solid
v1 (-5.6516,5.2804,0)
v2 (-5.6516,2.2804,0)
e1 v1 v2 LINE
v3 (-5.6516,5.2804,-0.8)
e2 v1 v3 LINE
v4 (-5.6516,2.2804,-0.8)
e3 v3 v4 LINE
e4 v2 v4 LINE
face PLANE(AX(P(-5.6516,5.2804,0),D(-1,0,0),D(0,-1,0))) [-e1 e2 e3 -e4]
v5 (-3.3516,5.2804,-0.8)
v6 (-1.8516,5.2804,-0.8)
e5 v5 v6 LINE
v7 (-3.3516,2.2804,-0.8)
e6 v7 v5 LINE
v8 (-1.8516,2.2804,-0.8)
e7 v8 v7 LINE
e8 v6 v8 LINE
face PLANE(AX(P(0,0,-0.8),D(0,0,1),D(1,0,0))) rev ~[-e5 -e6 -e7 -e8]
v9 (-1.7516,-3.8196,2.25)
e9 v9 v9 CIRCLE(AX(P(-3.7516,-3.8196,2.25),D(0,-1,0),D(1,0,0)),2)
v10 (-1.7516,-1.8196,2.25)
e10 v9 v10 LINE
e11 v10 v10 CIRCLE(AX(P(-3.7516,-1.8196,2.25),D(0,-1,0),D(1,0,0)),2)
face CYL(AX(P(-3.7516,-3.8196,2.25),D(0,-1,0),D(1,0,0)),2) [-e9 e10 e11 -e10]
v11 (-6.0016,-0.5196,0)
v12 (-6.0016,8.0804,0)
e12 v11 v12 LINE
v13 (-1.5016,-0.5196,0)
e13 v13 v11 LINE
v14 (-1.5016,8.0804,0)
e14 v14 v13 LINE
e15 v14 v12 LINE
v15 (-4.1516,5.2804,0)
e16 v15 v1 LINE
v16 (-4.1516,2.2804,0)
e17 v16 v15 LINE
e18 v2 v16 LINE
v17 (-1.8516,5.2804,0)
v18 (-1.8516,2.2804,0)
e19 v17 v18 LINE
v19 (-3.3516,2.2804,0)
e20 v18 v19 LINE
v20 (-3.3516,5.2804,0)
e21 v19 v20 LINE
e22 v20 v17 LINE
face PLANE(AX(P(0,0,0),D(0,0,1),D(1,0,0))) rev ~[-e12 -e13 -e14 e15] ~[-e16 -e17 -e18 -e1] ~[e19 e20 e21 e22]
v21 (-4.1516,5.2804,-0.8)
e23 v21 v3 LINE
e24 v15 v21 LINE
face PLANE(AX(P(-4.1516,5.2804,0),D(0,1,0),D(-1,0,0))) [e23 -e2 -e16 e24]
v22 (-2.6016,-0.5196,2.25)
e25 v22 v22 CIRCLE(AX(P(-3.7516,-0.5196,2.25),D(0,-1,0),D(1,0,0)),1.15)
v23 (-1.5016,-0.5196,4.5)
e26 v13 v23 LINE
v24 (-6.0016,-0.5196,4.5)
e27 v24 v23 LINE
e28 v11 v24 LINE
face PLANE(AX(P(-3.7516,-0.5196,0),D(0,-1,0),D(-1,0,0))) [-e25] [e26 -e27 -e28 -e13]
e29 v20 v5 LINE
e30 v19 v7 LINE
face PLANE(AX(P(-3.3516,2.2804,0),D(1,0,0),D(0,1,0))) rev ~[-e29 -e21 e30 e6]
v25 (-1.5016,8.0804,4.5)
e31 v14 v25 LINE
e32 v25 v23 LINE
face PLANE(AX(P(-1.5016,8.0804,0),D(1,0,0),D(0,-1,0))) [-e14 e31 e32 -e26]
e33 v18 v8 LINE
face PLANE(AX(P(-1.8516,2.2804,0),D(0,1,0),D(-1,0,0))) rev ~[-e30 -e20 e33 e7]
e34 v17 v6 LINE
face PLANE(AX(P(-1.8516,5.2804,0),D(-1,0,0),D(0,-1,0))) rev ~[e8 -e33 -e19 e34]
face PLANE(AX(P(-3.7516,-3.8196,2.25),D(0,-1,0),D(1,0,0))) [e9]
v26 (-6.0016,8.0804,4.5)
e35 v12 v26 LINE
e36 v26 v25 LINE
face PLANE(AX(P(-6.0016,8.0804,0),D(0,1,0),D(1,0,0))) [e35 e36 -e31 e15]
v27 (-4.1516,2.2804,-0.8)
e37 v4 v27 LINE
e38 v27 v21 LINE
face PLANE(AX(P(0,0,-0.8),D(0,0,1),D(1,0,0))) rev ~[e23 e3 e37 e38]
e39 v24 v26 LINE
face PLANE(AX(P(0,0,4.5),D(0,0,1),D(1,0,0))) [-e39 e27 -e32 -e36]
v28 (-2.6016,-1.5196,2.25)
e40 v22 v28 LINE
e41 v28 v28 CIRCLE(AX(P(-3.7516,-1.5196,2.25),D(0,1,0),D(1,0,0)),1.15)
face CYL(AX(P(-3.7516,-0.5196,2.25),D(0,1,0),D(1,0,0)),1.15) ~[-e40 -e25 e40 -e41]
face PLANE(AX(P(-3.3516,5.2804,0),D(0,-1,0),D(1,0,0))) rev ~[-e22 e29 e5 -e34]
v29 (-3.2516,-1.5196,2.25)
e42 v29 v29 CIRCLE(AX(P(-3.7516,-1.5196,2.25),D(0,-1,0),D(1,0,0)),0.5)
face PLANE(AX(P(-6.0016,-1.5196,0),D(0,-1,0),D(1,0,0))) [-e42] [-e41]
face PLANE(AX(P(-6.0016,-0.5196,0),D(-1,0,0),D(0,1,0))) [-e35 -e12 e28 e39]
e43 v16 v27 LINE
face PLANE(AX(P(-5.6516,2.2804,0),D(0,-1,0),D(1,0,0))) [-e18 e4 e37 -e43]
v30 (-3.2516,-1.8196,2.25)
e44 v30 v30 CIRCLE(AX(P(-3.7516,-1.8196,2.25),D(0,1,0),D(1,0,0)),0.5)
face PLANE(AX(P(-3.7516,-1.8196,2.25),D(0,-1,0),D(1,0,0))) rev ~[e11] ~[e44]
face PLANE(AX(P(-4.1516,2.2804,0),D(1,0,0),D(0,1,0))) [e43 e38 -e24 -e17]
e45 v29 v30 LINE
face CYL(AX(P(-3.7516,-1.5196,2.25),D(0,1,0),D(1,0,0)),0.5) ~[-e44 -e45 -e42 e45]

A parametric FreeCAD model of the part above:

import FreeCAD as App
import Part
import Sketcher

V = App.Vector


def add_polygon(sketch, points):
    """Adds a closed chain of lines whose ends are joined by coincident constraints."""
    first, n = sketch.GeometryCount, len(points)
    for a, b in zip(points, points[1:] + points[:1]):
        sketch.addGeometry(Part.LineSegment(App.Vector(*a, 0), App.Vector(*b, 0)), False)
    for i in range(n):
        sketch.addConstraint(Sketcher.Constraint("Coincident", first + i, 2, first + (i + 1) % n, 1))

doc = App.newDocument("Part")
body = doc.addObject("PartDesign::Body", "Body")

# Sketch on XY plane
sketch1 = doc.addObject("Sketcher::SketchObject", "Sketch")
body.addObject(sketch1)
sketch1.AttachmentSupport = (doc.XY_Plane, [""])
sketch1.MapMode = "FlatFace"
add_polygon(sketch1, [(-6, 8.1), (-6, -0.5), (-1.5, -0.5), (-1.5, 8.1)])  # lines 0-3
sketch1.addConstraint([
    Sketcher.Constraint("Vertical", 0),
    Sketcher.Constraint("Horizontal", 1),
    Sketcher.Constraint("Vertical", 2),
    Sketcher.Constraint("Horizontal", 3),
    Sketcher.Constraint("DistanceX", 1, 1, 1, 2, 4.5),
    Sketcher.Constraint("DistanceY", 0, 2, 0, 1, 8.6),
    Sketcher.Constraint("DistanceX", 0, 2, -1, 1, 6.0016),
    Sketcher.Constraint("DistanceY", 0, 2, -1, 1, 0.5196),
])
pad1 = doc.addObject("PartDesign::Pad", "Pad")
body.addObject(pad1)
pad1.Profile = sketch1
pad1.Length = 4.5

# Sketch on XY plane
sketch2 = doc.addObject("Sketcher::SketchObject", "Sketch001")
body.addObject(sketch2)
sketch2.AttachmentSupport = (doc.XY_Plane, [""])
sketch2.MapMode = "FlatFace"
add_polygon(sketch2, [(-1.9, 5.3), (-3.4, 5.3), (-3.4, 2.3), (-1.9, 2.3)])  # lines 0-3
add_polygon(sketch2, [(-4.2, 2.3), (-4.2, 5.3), (-5.7, 5.3), (-5.7, 2.3)])  # lines 4-7
sketch2.addConstraint([
    Sketcher.Constraint("Horizontal", 0),
    Sketcher.Constraint("Vertical", 1),
    Sketcher.Constraint("Horizontal", 2),
    Sketcher.Constraint("Vertical", 3),
    Sketcher.Constraint("Vertical", 4),
    Sketcher.Constraint("Horizontal", 5),
    Sketcher.Constraint("Vertical", 6),
    Sketcher.Constraint("Horizontal", 7),
    Sketcher.Constraint("Horizontal", 3, 2, 4, 2),
    Sketcher.Constraint("Horizontal", 2, 2, 6, 2),
    Sketcher.Constraint("Equal", 2, 5),
    Sketcher.Constraint("DistanceY", 1, 2, 1, 1, 3.0),
    Sketcher.Constraint("DistanceX", 0, 2, 0, 1, 1.5),
    Sketcher.Constraint("DistanceX", 4, 2, 0, 2, 0.8),
    Sketcher.Constraint("DistanceX", 0, 2, -1, 1, 3.3516),
    Sketcher.Constraint("DistanceY", -1, 1, 0, 2, 5.2804),
])
pad2 = doc.addObject("PartDesign::Pad", "Pad001")
body.addObject(pad2)
pad2.Profile = sketch2
pad2.Length = 0.8
pad2.Reversed = True

# Sketch on XZ plane
sketch3 = doc.addObject("Sketcher::SketchObject", "Sketch002")
body.addObject(sketch3)
sketch3.AttachmentSupport = (doc.XZ_Plane, [""])
sketch3.MapMode = "FlatFace"
sketch3.AttachmentOffset = App.Placement(V(0, 0, 0.5196), App.Rotation())
sketch3.addGeometry(Part.Circle(V(-3.8, 2.2, 0), V(0, 0, 1), 1.1), False)
sketch3.addConstraint([
    Sketcher.Constraint("Diameter", 0, 2.3),
    Sketcher.Constraint("DistanceY", -1, 1, 0, 3, 2.25),
    Sketcher.Constraint("DistanceX", 0, 3, -1, 1, 3.7516),
])
pad3 = doc.addObject("PartDesign::Pad", "Pad002")
body.addObject(pad3)
pad3.Profile = sketch3
pad3.Length = 1

# Sketch on XZ plane
sketch4 = doc.addObject("Sketcher::SketchObject", "Sketch003")
body.addObject(sketch4)
sketch4.AttachmentSupport = (doc.XZ_Plane, [""])
sketch4.MapMode = "FlatFace"
sketch4.AttachmentOffset = App.Placement(V(0, 0, 1.5196), App.Rotation())
sketch4.addGeometry(Part.Circle(V(-3.8, 2.2, 0), V(0, 0, 1), 0.5), False)
sketch4.addConstraint([
    Sketcher.Constraint("Diameter", 0, 1.0),
    Sketcher.Constraint("DistanceY", -1, 1, 0, 3, 2.25),
    Sketcher.Constraint("DistanceX", 0, 3, -1, 1, 3.7516),
])
pad4 = doc.addObject("PartDesign::Pad", "Pad003")
body.addObject(pad4)
pad4.Profile = sketch4
pad4.Length = 2.3

# Sketch on XZ plane
sketch5 = doc.addObject("Sketcher::SketchObject", "Sketch004")
body.addObject(sketch5)
sketch5.AttachmentSupport = (doc.XZ_Plane, [""])
sketch5.MapMode = "FlatFace"
sketch5.AttachmentOffset = App.Placement(V(0, 0, 3.8196), App.Rotation())
sketch5.addGeometry(Part.Circle(V(-3.8, 2.2, 0), V(0, 0, 1), 2), False)
sketch5.addConstraint([
    Sketcher.Constraint("Diameter", 0, 4.0),
    Sketcher.Constraint("DistanceY", -1, 1, 0, 3, 2.25),
    Sketcher.Constraint("DistanceX", 0, 3, -1, 1, 3.7516),
])
pad5 = doc.addObject("PartDesign::Pad", "Pad004")
body.addObject(pad5)
pad5.Profile = sketch5
pad5.Length = 2
pad5.Reversed = True

doc.recompute()
